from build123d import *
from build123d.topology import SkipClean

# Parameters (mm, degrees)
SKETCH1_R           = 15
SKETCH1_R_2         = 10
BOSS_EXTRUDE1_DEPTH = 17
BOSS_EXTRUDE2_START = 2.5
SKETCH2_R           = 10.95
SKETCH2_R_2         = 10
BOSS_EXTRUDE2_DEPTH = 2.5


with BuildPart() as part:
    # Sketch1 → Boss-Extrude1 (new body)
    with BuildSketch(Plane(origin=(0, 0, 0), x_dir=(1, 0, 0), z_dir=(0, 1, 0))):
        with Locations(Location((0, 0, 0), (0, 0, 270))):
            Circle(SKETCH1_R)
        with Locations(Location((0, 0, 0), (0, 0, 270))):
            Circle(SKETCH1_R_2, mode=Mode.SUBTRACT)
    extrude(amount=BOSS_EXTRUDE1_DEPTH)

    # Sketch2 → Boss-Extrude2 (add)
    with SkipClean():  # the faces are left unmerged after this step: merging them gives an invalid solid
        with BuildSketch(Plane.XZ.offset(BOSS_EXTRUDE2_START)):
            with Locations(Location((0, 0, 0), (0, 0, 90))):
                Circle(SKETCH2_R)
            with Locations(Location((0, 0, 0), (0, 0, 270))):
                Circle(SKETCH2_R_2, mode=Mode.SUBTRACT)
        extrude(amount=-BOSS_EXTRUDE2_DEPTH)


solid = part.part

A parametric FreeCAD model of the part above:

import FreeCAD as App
import Part
import Sketcher
Q = App.Units.Quantity

doc = App.newDocument("Part")
body = doc.addObject("PartDesign::Body", "Body")

sketch1 = doc.addObject("Sketcher::SketchObject", "Sketch")
body.addObject(sketch1)
sketch1.AttachmentSupport = (doc.XZ_Plane, [""])
sketch1.MapMode = "FlatFace"
sketch1.addGeometry([
    Part.Circle(App.Vector(0, 0, 0), App.Vector(0, 0, 1), 15),
    Part.Circle(App.Vector(0, 0, 0), App.Vector(0, 0, 1), 10),
], False)
sketch1.addConstraint([
    Sketcher.Constraint("Coincident", 0, 3, -1, 1),
    Sketcher.Constraint("Coincident", 1, 3, -1, 1),
    Sketcher.Constraint("Diameter", 0, Q("30 mm")),
    Sketcher.Constraint("Diameter", 1, Q("20 mm")),
])
pad1 = doc.addObject("PartDesign::Pad", "Pad")
body.addObject(pad1)
pad1.Profile = sketch1
pad1.Length = 17
pad1.Reversed = True

sketch2 = doc.addObject("Sketcher::SketchObject", "Sketch001")
body.addObject(sketch2)
sketch2.AttachmentSupport = (doc.XZ_Plane, [""])
sketch2.MapMode = "FlatFace"
sketch2.AttachmentOffset = App.Placement(App.Vector(0, 0, 2.5), App.Rotation())
sketch2.addGeometry([
    Part.Circle(App.Vector(0, 0, 0), App.Vector(0, 0, 1), 11),
    Part.Circle(App.Vector(0, 0, 0), App.Vector(0, 0, 1), 10),
], False)
sketch2.addConstraint([
    Sketcher.Constraint("Coincident", 0, 3, -1, 1),
    Sketcher.Constraint("Coincident", 1, 3, -1, 1),
    Sketcher.Constraint("Diameter", 1, Q("20 mm")),
    Sketcher.Constraint("Diameter", 0, Q("21.9 mm")),
])
pad2 = doc.addObject("PartDesign::Pad", "Pad001")
body.addObject(pad2)
pad2.Profile = sketch2
pad2.Length = 2.5
pad2.Reversed = True

doc.recompute()
